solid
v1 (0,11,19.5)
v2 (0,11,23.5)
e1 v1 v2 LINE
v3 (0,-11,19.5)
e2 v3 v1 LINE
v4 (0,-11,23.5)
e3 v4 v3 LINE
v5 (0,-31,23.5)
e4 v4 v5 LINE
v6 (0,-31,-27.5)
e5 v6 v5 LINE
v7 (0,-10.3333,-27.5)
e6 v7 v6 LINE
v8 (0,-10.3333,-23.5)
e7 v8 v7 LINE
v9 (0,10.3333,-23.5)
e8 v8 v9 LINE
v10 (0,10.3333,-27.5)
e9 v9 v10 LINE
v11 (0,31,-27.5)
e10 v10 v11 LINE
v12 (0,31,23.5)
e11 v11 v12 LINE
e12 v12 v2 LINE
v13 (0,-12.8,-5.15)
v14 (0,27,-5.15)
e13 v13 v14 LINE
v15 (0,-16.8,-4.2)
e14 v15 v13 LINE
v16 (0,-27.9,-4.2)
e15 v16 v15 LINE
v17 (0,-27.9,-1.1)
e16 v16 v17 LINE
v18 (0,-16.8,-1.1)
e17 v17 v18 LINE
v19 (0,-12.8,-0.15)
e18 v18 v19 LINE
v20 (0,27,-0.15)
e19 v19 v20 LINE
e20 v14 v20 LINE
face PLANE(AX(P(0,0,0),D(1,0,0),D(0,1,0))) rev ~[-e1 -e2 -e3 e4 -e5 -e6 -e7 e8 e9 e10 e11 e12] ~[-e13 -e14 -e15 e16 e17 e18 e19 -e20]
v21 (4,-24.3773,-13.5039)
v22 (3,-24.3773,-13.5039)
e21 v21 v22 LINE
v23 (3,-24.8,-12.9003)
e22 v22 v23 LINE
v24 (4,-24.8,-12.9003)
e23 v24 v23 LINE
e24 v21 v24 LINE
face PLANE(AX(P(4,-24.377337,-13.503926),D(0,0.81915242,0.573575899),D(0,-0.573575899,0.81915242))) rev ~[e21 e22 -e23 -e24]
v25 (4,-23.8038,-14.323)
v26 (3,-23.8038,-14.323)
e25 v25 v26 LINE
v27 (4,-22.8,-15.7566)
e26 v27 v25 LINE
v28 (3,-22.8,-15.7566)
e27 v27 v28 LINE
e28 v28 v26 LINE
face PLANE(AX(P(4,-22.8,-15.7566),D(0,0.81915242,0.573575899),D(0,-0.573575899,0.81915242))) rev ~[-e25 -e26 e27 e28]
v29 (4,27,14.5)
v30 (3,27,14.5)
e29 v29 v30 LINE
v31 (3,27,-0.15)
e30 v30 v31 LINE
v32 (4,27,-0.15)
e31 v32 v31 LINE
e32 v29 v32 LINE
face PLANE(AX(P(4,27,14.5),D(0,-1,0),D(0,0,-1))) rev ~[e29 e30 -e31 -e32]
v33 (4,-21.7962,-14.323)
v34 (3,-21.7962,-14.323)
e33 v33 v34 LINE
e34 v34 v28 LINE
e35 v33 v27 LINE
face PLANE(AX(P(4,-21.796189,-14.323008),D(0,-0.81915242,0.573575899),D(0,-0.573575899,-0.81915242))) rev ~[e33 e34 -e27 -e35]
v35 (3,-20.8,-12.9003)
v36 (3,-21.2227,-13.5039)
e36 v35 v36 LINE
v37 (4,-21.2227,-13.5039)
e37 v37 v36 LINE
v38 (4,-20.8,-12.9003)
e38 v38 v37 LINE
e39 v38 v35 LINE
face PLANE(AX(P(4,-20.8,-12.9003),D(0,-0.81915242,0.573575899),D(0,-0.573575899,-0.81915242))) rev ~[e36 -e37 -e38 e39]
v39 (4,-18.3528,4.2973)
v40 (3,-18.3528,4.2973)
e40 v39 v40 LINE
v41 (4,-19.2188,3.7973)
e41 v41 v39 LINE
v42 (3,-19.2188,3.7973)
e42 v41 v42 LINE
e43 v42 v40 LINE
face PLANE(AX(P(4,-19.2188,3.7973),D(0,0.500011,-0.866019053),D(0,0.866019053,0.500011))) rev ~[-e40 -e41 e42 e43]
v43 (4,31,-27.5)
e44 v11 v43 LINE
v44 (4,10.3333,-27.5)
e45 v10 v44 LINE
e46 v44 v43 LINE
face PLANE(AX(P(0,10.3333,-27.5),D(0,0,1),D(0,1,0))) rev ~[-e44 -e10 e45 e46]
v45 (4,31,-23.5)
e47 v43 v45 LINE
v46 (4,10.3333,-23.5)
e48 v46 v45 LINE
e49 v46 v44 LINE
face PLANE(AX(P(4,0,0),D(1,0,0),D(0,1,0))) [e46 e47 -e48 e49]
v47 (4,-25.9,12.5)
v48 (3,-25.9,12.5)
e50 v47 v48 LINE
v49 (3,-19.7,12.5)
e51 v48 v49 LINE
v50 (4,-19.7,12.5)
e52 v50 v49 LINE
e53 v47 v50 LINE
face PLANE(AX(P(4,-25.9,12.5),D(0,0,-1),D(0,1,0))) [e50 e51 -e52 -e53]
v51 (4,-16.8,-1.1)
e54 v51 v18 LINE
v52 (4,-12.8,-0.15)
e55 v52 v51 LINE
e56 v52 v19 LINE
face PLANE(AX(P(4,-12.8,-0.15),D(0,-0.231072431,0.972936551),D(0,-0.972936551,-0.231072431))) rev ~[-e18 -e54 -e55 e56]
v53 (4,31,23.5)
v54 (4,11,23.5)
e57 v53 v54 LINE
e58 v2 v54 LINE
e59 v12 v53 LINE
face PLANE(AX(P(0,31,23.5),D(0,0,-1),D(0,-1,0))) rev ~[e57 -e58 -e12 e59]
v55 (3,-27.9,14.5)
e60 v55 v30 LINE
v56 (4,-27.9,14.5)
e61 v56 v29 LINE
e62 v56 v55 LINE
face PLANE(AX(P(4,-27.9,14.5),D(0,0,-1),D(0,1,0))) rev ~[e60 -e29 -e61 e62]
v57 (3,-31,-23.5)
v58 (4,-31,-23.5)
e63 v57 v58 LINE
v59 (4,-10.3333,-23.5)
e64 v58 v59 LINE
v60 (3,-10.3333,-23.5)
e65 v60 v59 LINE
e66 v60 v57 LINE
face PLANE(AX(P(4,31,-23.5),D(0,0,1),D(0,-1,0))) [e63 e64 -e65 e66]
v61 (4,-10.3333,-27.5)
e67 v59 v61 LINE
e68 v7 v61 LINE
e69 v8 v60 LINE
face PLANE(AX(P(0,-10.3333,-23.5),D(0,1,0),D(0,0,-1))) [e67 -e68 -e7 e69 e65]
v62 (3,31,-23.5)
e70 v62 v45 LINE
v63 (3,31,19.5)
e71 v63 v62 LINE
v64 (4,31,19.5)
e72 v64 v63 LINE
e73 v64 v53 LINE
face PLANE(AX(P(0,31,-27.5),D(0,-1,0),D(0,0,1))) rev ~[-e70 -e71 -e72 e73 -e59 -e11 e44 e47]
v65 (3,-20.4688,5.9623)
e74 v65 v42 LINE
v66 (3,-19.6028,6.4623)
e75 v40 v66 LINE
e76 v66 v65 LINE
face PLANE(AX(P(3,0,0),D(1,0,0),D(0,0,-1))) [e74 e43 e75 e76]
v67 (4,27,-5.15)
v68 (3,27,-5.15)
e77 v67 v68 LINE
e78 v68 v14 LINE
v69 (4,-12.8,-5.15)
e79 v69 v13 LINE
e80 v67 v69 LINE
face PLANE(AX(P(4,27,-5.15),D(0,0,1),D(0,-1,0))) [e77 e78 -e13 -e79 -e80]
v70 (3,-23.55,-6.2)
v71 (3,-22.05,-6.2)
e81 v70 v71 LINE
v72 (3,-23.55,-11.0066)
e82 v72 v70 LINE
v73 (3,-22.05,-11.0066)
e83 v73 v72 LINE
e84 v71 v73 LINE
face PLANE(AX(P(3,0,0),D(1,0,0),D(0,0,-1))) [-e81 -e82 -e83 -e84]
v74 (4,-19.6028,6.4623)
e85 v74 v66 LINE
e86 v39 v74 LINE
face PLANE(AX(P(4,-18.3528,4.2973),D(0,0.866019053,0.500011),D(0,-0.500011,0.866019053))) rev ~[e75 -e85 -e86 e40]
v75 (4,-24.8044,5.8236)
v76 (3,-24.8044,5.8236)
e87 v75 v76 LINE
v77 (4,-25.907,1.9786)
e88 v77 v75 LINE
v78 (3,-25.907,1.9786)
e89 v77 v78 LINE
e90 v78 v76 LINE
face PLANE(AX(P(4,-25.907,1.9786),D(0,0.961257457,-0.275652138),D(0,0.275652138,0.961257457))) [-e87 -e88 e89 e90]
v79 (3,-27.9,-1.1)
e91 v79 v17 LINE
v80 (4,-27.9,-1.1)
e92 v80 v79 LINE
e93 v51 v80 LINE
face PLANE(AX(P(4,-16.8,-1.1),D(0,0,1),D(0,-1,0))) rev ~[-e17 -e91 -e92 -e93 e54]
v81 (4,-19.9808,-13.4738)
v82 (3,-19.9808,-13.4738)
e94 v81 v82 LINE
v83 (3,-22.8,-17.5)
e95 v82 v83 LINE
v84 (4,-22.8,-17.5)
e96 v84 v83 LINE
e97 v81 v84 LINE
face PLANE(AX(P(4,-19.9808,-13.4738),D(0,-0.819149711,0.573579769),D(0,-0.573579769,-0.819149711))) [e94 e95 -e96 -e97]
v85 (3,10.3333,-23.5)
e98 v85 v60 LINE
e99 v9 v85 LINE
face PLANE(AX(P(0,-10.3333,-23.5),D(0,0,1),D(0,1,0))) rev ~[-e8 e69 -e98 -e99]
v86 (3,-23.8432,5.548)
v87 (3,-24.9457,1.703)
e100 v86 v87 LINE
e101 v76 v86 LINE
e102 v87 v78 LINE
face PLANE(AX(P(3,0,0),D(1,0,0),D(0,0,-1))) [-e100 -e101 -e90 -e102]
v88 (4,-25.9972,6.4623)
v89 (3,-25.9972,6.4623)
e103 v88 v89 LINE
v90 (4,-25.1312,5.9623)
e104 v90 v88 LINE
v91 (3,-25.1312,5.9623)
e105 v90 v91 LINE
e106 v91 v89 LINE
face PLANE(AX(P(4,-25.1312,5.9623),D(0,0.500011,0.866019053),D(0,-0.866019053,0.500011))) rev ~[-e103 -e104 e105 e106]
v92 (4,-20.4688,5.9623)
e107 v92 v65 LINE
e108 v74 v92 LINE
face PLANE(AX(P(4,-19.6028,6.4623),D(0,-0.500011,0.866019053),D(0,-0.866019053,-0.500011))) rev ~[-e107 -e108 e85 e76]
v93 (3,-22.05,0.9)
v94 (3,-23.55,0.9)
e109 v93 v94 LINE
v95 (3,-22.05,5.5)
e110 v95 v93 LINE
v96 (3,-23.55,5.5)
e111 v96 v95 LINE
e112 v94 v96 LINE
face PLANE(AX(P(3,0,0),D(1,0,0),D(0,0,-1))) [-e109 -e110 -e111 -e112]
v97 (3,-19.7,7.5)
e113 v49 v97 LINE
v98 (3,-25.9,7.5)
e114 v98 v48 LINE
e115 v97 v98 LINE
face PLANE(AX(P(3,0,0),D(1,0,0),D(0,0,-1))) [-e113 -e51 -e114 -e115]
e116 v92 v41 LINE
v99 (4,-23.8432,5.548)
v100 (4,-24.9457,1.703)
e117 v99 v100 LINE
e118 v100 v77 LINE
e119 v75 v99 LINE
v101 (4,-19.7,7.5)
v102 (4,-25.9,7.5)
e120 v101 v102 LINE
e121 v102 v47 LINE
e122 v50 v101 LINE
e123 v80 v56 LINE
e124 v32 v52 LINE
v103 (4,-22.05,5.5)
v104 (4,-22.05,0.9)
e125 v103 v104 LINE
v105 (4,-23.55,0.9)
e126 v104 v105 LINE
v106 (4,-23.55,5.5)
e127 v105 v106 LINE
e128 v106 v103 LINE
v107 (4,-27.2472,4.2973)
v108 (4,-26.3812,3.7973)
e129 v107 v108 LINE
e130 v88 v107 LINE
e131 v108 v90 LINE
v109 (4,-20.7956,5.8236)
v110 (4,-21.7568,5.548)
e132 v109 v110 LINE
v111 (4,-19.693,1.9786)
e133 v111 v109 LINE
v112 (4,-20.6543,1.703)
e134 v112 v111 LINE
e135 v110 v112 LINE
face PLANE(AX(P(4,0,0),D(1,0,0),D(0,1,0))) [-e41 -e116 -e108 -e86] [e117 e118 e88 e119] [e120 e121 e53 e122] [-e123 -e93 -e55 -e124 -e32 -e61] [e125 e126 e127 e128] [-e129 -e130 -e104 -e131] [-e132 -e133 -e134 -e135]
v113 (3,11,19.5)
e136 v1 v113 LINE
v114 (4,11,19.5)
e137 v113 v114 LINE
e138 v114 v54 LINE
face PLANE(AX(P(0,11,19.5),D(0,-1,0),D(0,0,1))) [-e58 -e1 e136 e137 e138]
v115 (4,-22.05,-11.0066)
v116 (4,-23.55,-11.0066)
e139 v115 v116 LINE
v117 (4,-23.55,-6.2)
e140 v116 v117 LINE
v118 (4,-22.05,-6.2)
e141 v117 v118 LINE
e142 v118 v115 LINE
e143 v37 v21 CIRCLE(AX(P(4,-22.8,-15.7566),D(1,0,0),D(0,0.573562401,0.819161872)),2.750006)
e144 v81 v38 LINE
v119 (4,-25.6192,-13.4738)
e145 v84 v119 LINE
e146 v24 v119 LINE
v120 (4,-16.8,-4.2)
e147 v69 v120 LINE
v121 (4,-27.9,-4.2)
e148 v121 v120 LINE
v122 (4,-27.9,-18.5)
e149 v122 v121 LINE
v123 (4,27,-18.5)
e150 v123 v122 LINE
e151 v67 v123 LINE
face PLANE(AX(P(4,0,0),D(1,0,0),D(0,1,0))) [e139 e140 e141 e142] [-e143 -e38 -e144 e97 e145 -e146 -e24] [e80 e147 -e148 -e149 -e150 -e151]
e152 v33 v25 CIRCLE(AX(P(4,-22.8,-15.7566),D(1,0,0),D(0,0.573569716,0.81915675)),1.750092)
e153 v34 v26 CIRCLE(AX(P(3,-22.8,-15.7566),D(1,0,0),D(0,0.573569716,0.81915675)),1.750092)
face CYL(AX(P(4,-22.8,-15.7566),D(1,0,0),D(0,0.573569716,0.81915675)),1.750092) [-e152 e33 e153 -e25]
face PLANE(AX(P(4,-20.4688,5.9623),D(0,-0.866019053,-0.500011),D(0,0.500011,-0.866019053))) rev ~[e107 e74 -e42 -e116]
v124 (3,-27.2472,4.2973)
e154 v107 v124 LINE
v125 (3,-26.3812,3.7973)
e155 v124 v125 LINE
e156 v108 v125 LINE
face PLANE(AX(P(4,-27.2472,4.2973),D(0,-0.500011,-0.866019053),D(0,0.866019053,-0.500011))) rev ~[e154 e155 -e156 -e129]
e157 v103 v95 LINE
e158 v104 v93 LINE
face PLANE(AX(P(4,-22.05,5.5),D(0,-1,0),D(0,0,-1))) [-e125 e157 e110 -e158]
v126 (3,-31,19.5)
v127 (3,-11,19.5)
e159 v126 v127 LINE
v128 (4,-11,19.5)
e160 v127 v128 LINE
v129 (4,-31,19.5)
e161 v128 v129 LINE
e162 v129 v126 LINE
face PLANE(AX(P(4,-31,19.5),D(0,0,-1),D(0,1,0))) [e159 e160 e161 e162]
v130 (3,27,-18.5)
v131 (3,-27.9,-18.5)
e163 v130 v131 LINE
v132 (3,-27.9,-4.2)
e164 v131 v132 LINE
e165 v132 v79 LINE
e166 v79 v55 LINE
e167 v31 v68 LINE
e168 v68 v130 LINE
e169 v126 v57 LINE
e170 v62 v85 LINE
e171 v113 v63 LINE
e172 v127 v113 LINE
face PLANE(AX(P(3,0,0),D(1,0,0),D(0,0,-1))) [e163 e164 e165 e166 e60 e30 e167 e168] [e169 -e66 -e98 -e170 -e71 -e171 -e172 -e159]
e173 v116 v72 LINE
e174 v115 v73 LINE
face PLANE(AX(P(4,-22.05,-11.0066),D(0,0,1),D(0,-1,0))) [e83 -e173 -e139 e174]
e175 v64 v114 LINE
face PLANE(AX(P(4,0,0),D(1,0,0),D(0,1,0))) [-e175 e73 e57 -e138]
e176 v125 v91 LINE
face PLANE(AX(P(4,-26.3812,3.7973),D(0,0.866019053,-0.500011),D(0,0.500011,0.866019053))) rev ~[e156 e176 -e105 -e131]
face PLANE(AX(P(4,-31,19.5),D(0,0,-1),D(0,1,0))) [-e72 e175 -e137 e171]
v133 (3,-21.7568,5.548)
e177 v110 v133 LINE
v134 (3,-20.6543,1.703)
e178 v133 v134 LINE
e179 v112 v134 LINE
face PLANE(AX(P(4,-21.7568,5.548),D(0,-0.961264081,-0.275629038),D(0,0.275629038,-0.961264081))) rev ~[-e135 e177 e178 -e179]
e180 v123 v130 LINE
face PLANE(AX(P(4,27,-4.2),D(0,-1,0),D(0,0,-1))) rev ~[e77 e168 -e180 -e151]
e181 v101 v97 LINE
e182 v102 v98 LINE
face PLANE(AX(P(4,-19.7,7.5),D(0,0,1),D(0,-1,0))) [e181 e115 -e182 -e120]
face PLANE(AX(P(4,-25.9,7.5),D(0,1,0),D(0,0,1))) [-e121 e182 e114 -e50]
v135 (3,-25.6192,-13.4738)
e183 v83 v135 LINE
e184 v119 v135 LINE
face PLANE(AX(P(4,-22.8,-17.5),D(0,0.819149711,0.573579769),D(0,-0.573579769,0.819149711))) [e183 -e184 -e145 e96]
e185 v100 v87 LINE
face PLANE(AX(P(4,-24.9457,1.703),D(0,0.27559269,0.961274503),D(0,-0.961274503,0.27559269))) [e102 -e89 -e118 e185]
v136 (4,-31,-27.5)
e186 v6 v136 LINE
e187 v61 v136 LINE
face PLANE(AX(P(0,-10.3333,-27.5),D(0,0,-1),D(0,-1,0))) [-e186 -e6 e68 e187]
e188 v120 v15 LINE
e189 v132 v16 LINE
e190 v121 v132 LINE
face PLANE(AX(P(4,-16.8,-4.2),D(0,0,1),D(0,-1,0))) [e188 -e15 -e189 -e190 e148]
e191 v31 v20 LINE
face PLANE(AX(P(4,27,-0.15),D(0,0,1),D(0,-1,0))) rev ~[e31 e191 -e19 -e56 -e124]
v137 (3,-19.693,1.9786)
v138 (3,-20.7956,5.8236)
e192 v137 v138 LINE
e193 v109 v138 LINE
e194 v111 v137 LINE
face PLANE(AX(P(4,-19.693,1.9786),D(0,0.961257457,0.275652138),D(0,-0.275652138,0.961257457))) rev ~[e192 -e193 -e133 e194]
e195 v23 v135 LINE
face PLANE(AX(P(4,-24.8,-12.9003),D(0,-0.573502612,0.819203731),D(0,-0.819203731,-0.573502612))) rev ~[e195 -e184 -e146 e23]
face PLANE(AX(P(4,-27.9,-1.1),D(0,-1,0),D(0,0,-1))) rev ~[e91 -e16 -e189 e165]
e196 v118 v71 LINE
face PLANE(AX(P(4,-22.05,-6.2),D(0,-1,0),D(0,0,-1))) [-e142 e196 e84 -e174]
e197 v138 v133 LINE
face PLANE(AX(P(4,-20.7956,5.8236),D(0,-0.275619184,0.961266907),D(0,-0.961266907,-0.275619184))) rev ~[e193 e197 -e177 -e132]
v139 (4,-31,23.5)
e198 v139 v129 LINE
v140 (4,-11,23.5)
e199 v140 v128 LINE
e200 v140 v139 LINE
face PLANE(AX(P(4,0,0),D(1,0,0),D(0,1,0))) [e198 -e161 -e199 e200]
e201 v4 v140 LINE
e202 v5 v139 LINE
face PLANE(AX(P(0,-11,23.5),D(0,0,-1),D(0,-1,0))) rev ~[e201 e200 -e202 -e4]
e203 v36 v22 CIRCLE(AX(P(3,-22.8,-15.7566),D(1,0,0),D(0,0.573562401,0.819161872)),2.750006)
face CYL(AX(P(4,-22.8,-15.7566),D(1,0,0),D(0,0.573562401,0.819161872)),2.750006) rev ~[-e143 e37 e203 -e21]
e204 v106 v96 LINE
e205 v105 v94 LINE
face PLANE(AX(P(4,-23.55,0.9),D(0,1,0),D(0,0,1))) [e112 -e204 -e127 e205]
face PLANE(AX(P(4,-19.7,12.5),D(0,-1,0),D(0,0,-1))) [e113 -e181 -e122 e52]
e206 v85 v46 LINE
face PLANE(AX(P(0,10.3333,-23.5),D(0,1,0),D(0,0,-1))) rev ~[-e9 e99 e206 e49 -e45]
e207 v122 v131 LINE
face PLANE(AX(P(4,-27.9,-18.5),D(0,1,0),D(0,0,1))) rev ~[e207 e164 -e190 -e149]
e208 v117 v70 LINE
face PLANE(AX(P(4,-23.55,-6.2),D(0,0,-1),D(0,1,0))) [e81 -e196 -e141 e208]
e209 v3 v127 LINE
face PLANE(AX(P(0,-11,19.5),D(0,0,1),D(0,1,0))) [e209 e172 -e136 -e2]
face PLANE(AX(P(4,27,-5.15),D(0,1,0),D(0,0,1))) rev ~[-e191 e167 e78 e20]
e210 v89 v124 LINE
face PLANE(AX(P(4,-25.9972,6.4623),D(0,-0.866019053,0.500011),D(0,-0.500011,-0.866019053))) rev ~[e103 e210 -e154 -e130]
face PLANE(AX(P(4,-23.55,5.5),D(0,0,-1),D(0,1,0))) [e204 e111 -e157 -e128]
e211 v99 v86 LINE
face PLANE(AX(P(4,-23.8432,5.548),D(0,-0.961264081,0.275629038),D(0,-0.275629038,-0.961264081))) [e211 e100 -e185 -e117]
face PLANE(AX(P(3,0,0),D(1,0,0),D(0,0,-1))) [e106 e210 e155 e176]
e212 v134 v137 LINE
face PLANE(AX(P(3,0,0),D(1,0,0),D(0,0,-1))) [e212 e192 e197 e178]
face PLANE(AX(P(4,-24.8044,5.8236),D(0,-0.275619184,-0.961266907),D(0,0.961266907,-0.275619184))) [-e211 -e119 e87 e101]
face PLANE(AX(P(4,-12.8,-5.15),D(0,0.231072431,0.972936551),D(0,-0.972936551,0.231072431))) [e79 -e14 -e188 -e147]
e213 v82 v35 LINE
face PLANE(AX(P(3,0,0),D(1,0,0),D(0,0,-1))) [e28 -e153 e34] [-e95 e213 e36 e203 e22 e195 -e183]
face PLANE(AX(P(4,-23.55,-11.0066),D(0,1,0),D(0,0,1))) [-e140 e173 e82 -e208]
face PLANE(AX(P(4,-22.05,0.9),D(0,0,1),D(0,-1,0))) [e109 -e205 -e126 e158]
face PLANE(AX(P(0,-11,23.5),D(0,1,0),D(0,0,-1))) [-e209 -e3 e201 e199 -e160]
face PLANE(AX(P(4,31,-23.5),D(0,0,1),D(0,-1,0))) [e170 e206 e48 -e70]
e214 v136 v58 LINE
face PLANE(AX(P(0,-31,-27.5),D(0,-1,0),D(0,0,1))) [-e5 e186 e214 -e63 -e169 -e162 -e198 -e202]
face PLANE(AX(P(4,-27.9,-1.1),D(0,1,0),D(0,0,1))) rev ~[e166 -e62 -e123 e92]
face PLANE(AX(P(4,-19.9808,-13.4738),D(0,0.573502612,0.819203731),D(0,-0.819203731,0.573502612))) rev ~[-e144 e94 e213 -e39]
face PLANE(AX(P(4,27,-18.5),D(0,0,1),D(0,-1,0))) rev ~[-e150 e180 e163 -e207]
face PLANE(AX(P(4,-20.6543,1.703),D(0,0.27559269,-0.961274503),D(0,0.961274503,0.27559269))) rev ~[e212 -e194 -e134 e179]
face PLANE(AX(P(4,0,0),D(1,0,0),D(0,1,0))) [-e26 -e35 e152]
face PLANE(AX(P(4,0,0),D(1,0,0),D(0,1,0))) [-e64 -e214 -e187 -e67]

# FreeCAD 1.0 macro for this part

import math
import FreeCAD as App
import Part
import Sketcher
from FreeCAD import Vector
Q = App.Units.Quantity

doc = App.newDocument("Part")
params = doc.addObject("Spreadsheet::Sheet", "Params")
for row, (alias, value) in enumerate([
    ("sketch1_width", "20 mm"),
    ("sketch1_height", "4 mm"),
    ("pad1_length", "4 mm"),
    ("sketch2_height", "5 mm"),
    ("sketch2_radius", "2.75 mm"),
    ("sketch2_radius2", "1.75 mm"),
    ("sketch2_length", "1 mm"),
    ("sketch2_length2", "4 mm"),
    ("pocket1_length", "1 mm"),
    ("sketch3_height", "5 mm"),
    ("sketch3_width", "11.1 mm"),
    ("sketch3_width2", "39.8 mm"),
    ("sketch3_height2", "3.1 mm"),
    ("pocket2_length", "4 mm"),
], start=1):
    params.set(f"A{row}", alias)
    params.set(f"B{row}", "=" + value)
    params.setAlias(f"B{row}", alias)

body = doc.addObject("PartDesign::Body", "Body")

# Sketch on YZ plane
sketch1 = body.newObject("Sketcher::SketchObject", "Sketch")
sketch1.AttachmentSupport = (doc.getObject("YZ_Plane"), [""])
sketch1.MapMode = "FlatFace"
sketch1.addGeometry([
    Part.LineSegment(Vector(31, -27.5, 0), Vector(31, 23.5, 0)),  # 0
    Part.LineSegment(Vector(31, 23.5, 0), Vector(11, 23.5, 0)),  # 1
    Part.LineSegment(Vector(11, 23.5, 0), Vector(11, 19.5, 0)),  # 2
    Part.LineSegment(Vector(11, 19.5, 0), Vector(-11, 19.5, 0)),  # 3
    Part.LineSegment(Vector(-11, 19.5, 0), Vector(-11, 23.5, 0)),  # 4
    Part.LineSegment(Vector(-11, 23.5, 0), Vector(-31, 23.5, 0)),  # 5
    Part.LineSegment(Vector(-31, 23.5, 0), Vector(-31, -27.5, 0)),  # 6
    Part.LineSegment(Vector(-31, -27.5, 0), Vector(-10.3333, -27.5, 0)),  # 7
    Part.LineSegment(Vector(-10.3333, -27.5, 0), Vector(-10.3333, -23.5, 0)),  # 8
    Part.LineSegment(Vector(-10.3333, -23.5, 0), Vector(10.3333, -23.5, 0)),  # 9
    Part.LineSegment(Vector(10.3333, -23.5, 0), Vector(10.3333, -27.5, 0)),  # 10
    Part.LineSegment(Vector(10.3333, -27.5, 0), Vector(31, -27.5, 0)),  # 11
], False)
sketch1.addConstraint([
    Sketcher.Constraint("Coincident", 0, 2, 1, 1),
    Sketcher.Constraint("Coincident", 1, 2, 2, 1),
    Sketcher.Constraint("Coincident", 2, 2, 3, 1),
    Sketcher.Constraint("Coincident", 3, 2, 4, 1),
    Sketcher.Constraint("Coincident", 4, 2, 5, 1),
    Sketcher.Constraint("Coincident", 5, 2, 6, 1),
    Sketcher.Constraint("Coincident", 6, 2, 7, 1),
    Sketcher.Constraint("Coincident", 7, 2, 8, 1),
    Sketcher.Constraint("Coincident", 8, 2, 9, 1),
    Sketcher.Constraint("Coincident", 9, 2, 10, 1),
    Sketcher.Constraint("Coincident", 10, 2, 11, 1),
    Sketcher.Constraint("Coincident", 11, 2, 0, 1),
    Sketcher.Constraint("Vertical", 0),
    Sketcher.Constraint("Horizontal", 1),
    Sketcher.Constraint("Vertical", 2),
    Sketcher.Constraint("Horizontal", 3),
    Sketcher.Constraint("Vertical", 4),
    Sketcher.Constraint("Horizontal", 5),
    Sketcher.Constraint("Vertical", 6),
    Sketcher.Constraint("Horizontal", 7),
    Sketcher.Constraint("Vertical", 8),
    Sketcher.Constraint("Horizontal", 9),
    Sketcher.Constraint("Vertical", 10),
    Sketcher.Constraint("Horizontal", 11),
    Sketcher.Constraint("Symmetric", 1, 2, 4, 2, -2),
    Sketcher.Constraint("Symmetric", 7, 2, 10, 2, -2),
    Sketcher.Constraint("Equal", 1, 5),
    Sketcher.Constraint("Equal", 7, 9),
    Sketcher.Constraint("Equal", 4, 8),
    Sketcher.Constraint("DistanceX", 1, 2, 1, 1, 20.0),
    Sketcher.Constraint("DistanceY", 2, 2, 2, 1, 4.0),
    Sketcher.Constraint("DistanceX", 5, 2, 0, 2, 62.0),
    Sketcher.Constraint("DistanceY", 6, 2, 3, 2, 47.0),
    Sketcher.Constraint("DistanceY", -1, 1, 0, 2, 23.5),
])
sketch1.setExpression("Constraints[29]", "Params.sketch1_width")
sketch1.setExpression("Constraints[30]", "Params.sketch1_height")
pad1 = body.newObject("PartDesign::Pad", "Pad")
pad1.Profile = sketch1
pad1.setExpression("Length", "Params.pad1_length")

# Sketch on YZ plane
sketch2 = body.newObject("Sketcher::SketchObject", "Sketch001")
sketch2.AttachmentSupport = (doc.getObject("YZ_Plane"), [""])
sketch2.MapMode = "FlatFace"
sketch2.AttachmentOffset = App.Placement(Vector(0, 0, 4), App.Rotation())
sketch2.addGeometry([
    Part.LineSegment(Vector(31, -23.5, 0), Vector(31, 19.5, 0)),  # 0
    Part.LineSegment(Vector(31, 19.5, 0), Vector(-31, 19.5, 0)),  # 1
    Part.LineSegment(Vector(-31, 19.5, 0), Vector(-31, -23.5, 0)),  # 2
    Part.LineSegment(Vector(-31, -23.5, 0), Vector(31, -23.5, 0)),  # 3
    Part.LineSegment(Vector(-27.9, -4.2, 0), Vector(27, -4.2, 0)),  # 4
    Part.LineSegment(Vector(27, -4.2, 0), Vector(27, -18.5, 0)),  # 5
    Part.LineSegment(Vector(27, -18.5, 0), Vector(-27.9, -18.5, 0)),  # 6
    Part.LineSegment(Vector(-27.9, -18.5, 0), Vector(-27.9, -4.2, 0)),  # 7
    Part.LineSegment(Vector(27, -1.1, 0), Vector(-27.9, -1.1, 0)),  # 8
    Part.LineSegment(Vector(-27.9, -1.1, 0), Vector(-27.9, 14.5, 0)),  # 9
    Part.LineSegment(Vector(-27.9, 14.5, 0), Vector(27, 14.5, 0)),  # 10
    Part.LineSegment(Vector(27, 14.5, 0), Vector(27, -1.1, 0)),  # 11
    Part.LineSegment(Vector(-19.7, 7.5, 0), Vector(-19.7, 12.5, 0)),  # 12
    Part.LineSegment(Vector(-19.7, 12.5, 0), Vector(-25.9, 12.5, 0)),  # 13
    Part.LineSegment(Vector(-25.9, 12.5, 0), Vector(-25.9, 7.5, 0)),  # 14
    Part.LineSegment(Vector(-25.9, 7.5, 0), Vector(-19.7, 7.5, 0)),  # 15
    Part.LineSegment(Vector(-22.05, 0.9, 0), Vector(-22.05, 5.5, 0)),  # 16
    Part.LineSegment(Vector(-22.05, 5.5, 0), Vector(-23.55, 5.5, 0)),  # 17
    Part.LineSegment(Vector(-23.55, 5.5, 0), Vector(-23.55, 0.9, 0)),  # 18
    Part.LineSegment(Vector(-23.55, 0.9, 0), Vector(-22.05, 0.9, 0)),  # 19
    Part.LineSegment(Vector(-22.8, -17.5, 0), Vector(-19.9808, -13.4738, 0)),  # 20
    Part.LineSegment(Vector(-19.9808, -13.4738, 0), Vector(-20.8, -12.9003, 0)),  # 21
    Part.LineSegment(Vector(-20.8, -12.9003, 0), Vector(-21.222663, -13.503926, 0)),  # 22
    Part.ArcOfCircle(Part.Circle(Vector(-22.8, -15.7566, 0), Vector(0, 0, 1), 2.750006), math.radians(55.000982), math.radians(124.999018)),  # 23
    Part.LineSegment(Vector(-24.377337, -13.503926, 0), Vector(-24.8, -12.9003, 0)),  # 24
    Part.LineSegment(Vector(-24.8, -12.9003, 0), Vector(-25.6192, -13.4738, 0)),  # 25
    Part.LineSegment(Vector(-25.6192, -13.4738, 0), Vector(-22.8, -17.5, 0)),  # 26
    Part.LineSegment(Vector(-22.8, -15.7566, 0), Vector(-23.803811, -14.323008, 0)),  # 27
    Part.ArcOfCircle(Part.Circle(Vector(-22.8, -15.7566, 0), Vector(0, 0, 1), 1.750092), math.radians(55.00047), math.radians(124.99953)),  # 28
    Part.LineSegment(Vector(-21.796189, -14.323008, 0), Vector(-22.8, -15.7566, 0)),  # 29
    Part.LineSegment(Vector(-22.05, -11.0066, 0), Vector(-22.05, -6.2, 0)),  # 30
    Part.LineSegment(Vector(-22.05, -6.2, 0), Vector(-23.55, -6.2, 0)),  # 31
    Part.LineSegment(Vector(-23.55, -6.2, 0), Vector(-23.55, -11.0066, 0)),  # 32
    Part.LineSegment(Vector(-23.55, -11.0066, 0), Vector(-22.05, -11.0066, 0)),  # 33
    Part.LineSegment(Vector(-19.693, 1.9786, 0), Vector(-20.7956, 5.8236, 0)),  # 34
    Part.LineSegment(Vector(-20.7956, 5.8236, 0), Vector(-21.7568, 5.548, 0)),  # 35
    Part.LineSegment(Vector(-21.7568, 5.548, 0), Vector(-20.6543, 1.703, 0)),  # 36
    Part.LineSegment(Vector(-20.6543, 1.703, 0), Vector(-19.693, 1.9786, 0)),  # 37
    Part.LineSegment(Vector(-24.9457, 1.703, 0), Vector(-23.8432, 5.548, 0)),  # 38
    Part.LineSegment(Vector(-23.8432, 5.548, 0), Vector(-24.8044, 5.8236, 0)),  # 39
    Part.LineSegment(Vector(-24.8044, 5.8236, 0), Vector(-25.907, 1.9786, 0)),  # 40
    Part.LineSegment(Vector(-25.907, 1.9786, 0), Vector(-24.9457, 1.703, 0)),  # 41
    Part.LineSegment(Vector(-18.3528, 4.2973, 0), Vector(-19.6028, 6.4623, 0)),  # 42
    Part.LineSegment(Vector(-19.6028, 6.4623, 0), Vector(-20.4688, 5.9623, 0)),  # 43
    Part.LineSegment(Vector(-20.4688, 5.9623, 0), Vector(-19.2188, 3.7973, 0)),  # 44
    Part.LineSegment(Vector(-19.2188, 3.7973, 0), Vector(-18.3528, 4.2973, 0)),  # 45
    Part.LineSegment(Vector(-26.3812, 3.7973, 0), Vector(-25.1312, 5.9623, 0)),  # 46
    Part.LineSegment(Vector(-25.1312, 5.9623, 0), Vector(-25.9972, 6.4623, 0)),  # 47
    Part.LineSegment(Vector(-25.9972, 6.4623, 0), Vector(-27.2472, 4.2973, 0)),  # 48
    Part.LineSegment(Vector(-27.2472, 4.2973, 0), Vector(-26.3812, 3.7973, 0)),  # 49
], False)
sketch2.addConstraint([
    Sketcher.Constraint("Coincident", 0, 2, 1, 1),
    Sketcher.Constraint("Coincident", 1, 2, 2, 1),
    Sketcher.Constraint("Coincident", 2, 2, 3, 1),
    Sketcher.Constraint("Coincident", 3, 2, 0, 1),
    Sketcher.Constraint("Coincident", 4, 2, 5, 1),
    Sketcher.Constraint("Coincident", 5, 2, 6, 1),
    Sketcher.Constraint("Coincident", 6, 2, 7, 1),
    Sketcher.Constraint("Coincident", 7, 2, 4, 1),
    Sketcher.Constraint("Coincident", 8, 2, 9, 1),
    Sketcher.Constraint("Coincident", 9, 2, 10, 1),
    Sketcher.Constraint("Coincident", 10, 2, 11, 1),
    Sketcher.Constraint("Coincident", 11, 2, 8, 1),
    Sketcher.Constraint("Coincident", 12, 2, 13, 1),
    Sketcher.Constraint("Coincident", 13, 2, 14, 1),
    Sketcher.Constraint("Coincident", 14, 2, 15, 1),
    Sketcher.Constraint("Coincident", 15, 2, 12, 1),
    Sketcher.Constraint("Coincident", 16, 2, 17, 1),
    Sketcher.Constraint("Coincident", 17, 2, 18, 1),
    Sketcher.Constraint("Coincident", 18, 2, 19, 1),
    Sketcher.Constraint("Coincident", 19, 2, 16, 1),
    Sketcher.Constraint("Coincident", 20, 2, 21, 1),
    Sketcher.Constraint("Coincident", 21, 2, 22, 1),
    Sketcher.Constraint("Coincident", 22, 2, 23, 1),
    Sketcher.Constraint("Coincident", 23, 2, 24, 1),
    Sketcher.Constraint("Coincident", 24, 2, 25, 1),
    Sketcher.Constraint("Coincident", 25, 2, 26, 1),
    Sketcher.Constraint("Coincident", 26, 2, 20, 1),
    Sketcher.Constraint("Coincident", 27, 2, 28, 2),
    Sketcher.Constraint("Coincident", 28, 1, 29, 1),
    Sketcher.Constraint("Coincident", 29, 2, 27, 1),
    Sketcher.Constraint("Coincident", 30, 2, 31, 1),
    Sketcher.Constraint("Coincident", 31, 2, 32, 1),
    Sketcher.Constraint("Coincident", 32, 2, 33, 1),
    Sketcher.Constraint("Coincident", 33, 2, 30, 1),
    Sketcher.Constraint("Coincident", 34, 2, 35, 1),
    Sketcher.Constraint("Coincident", 35, 2, 36, 1),
    Sketcher.Constraint("Coincident", 36, 2, 37, 1),
    Sketcher.Constraint("Coincident", 37, 2, 34, 1),
    Sketcher.Constraint("Coincident", 38, 2, 39, 1),
    Sketcher.Constraint("Coincident", 39, 2, 40, 1),
    Sketcher.Constraint("Coincident", 40, 2, 41, 1),
    Sketcher.Constraint("Coincident", 41, 2, 38, 1),
    Sketcher.Constraint("Coincident", 42, 2, 43, 1),
    Sketcher.Constraint("Coincident", 43, 2, 44, 1),
    Sketcher.Constraint("Coincident", 44, 2, 45, 1),
    Sketcher.Constraint("Coincident", 45, 2, 42, 1),
    Sketcher.Constraint("Coincident", 46, 2, 47, 1),
    Sketcher.Constraint("Coincident", 47, 2, 48, 1),
    Sketcher.Constraint("Coincident", 48, 2, 49, 1),
    Sketcher.Constraint("Coincident", 49, 2, 46, 1),
    Sketcher.Constraint("Vertical", 0),
    Sketcher.Constraint("Horizontal", 1),
    Sketcher.Constraint("Vertical", 2),
    Sketcher.Constraint("Horizontal", 3),
    Sketcher.Constraint("Horizontal", 4),
    Sketcher.Constraint("Vertical", 5),
    Sketcher.Constraint("Horizontal", 6),
    Sketcher.Constraint("Vertical", 7),
    Sketcher.Constraint("Horizontal", 8),
    Sketcher.Constraint("Vertical", 9),
    Sketcher.Constraint("Horizontal", 10),
    Sketcher.Constraint("Vertical", 11),
    Sketcher.Constraint("Vertical", 12),
    Sketcher.Constraint("Horizontal", 13),
    Sketcher.Constraint("Vertical", 14),
    Sketcher.Constraint("Horizontal", 15),
    Sketcher.Constraint("Vertical", 16),
    Sketcher.Constraint("Horizontal", 17),
    Sketcher.Constraint("Vertical", 18),
    Sketcher.Constraint("Horizontal", 19),
    Sketcher.Constraint("Vertical", 30),
    Sketcher.Constraint("Horizontal", 31),
    Sketcher.Constraint("Vertical", 32),
    Sketcher.Constraint("Horizontal", 33),
    Sketcher.Constraint("Coincident", 28, 3, 23, 3),
    Sketcher.Constraint("Coincident", 29, 2, 23, 3),
    Sketcher.Constraint("Perpendicular", 20, 21),
    Sketcher.Constraint("Perpendicular", 21, 22),
    Sketcher.Constraint("Perpendicular", 24, 25),
    Sketcher.Constraint("Perpendicular", 25, 26),
    Sketcher.Constraint("Parallel", 26, 27),
    Sketcher.Constraint("Parallel", 22, 29),
    Sketcher.Constraint("Perpendicular", 34, 35),
    Sketcher.Constraint("Perpendicular", 35, 36),
    Sketcher.Constraint("Perpendicular", 36, 37),
    Sketcher.Constraint("Perpendicular", 38, 39),
    Sketcher.Constraint("Perpendicular", 39, 40),
    Sketcher.Constraint("Perpendicular", 40, 41),
    Sketcher.Constraint("Perpendicular", 42, 43),
    Sketcher.Constraint("Perpendicular", 43, 44),
    Sketcher.Constraint("Perpendicular", 44, 45),
    Sketcher.Constraint("Perpendicular", 46, 47),
    Sketcher.Constraint("Perpendicular", 47, 48),
    Sketcher.Constraint("Perpendicular", 48, 49),
    Sketcher.Constraint("Horizontal", 22, 2, 23, 2),
    Sketcher.Constraint("Horizontal", 21, 2, 24, 2),
    Sketcher.Constraint("Horizontal", 20, 2, 25, 2),
    Sketcher.Constraint("Horizontal", 27, 2, 28, 1),
    Sketcher.Constraint("Horizontal", 35, 2, 38, 2),
    Sketcher.Constraint("Horizontal", 34, 2, 39, 2),
    Sketcher.Constraint("Horizontal", 37, 2, 40, 2),
    Sketcher.Constraint("Horizontal", 43, 2, 46, 2),
    Sketcher.Constraint("Horizontal", 42, 2, 47, 2),
    Sketcher.Constraint("Horizontal", 45, 2, 48, 2),
    Sketcher.Constraint("Vertical", 7, 2, 8, 2),
    Sketcher.Constraint("Vertical", 5, 2, 10, 2),
    Sketcher.Constraint("Vertical", 19, 2, 30, 2),
    Sketcher.Constraint("Vertical", 18, 2, 31, 2),
    Sketcher.Constraint("Equal", 25, 35),
    Sketcher.Constraint("Equal", 36, 38),
    Sketcher.Constraint("Equal", 41, 43),
    Sketcher.Constraint("Equal", 44, 46),
    Sketcher.Constraint("DistanceY", 12, 1, 12, 2, 5.0),
    Sketcher.Constraint("Radius", 23, 2.75),
    Sketcher.Constraint("Radius", 28, 1.75),
    Sketcher.Constraint("Distance", 21, 1.0),
    Sketcher.Constraint("Distance", 34, 4.0),
    Sketcher.Constraint("DistanceX", 13, 2, 13, 1, 6.2),
    Sketcher.Constraint("DistanceX", 17, 2, 17, 1, 1.5),
    Sketcher.Constraint("DistanceY", 5, 2, 5, 1, 14.3),
    Sketcher.Constraint("DistanceX", 4, 2, 3, 2, 4.0),
    Sketcher.Constraint("DistanceY", 3, 2, 5, 2, 5.0),
    Sketcher.Constraint("DistanceY", 9, 2, 1, 2, 5.0),
    Sketcher.Constraint("DistanceY", 12, 2, 9, 2, 2.0),
    Sketcher.Constraint("DistanceX", 9, 2, 13, 2, 2.0),
    Sketcher.Constraint("DistanceY", 16, 2, 15, 2, 2.0),
    Sketcher.Constraint("DistanceY", 8, 2, 18, 2, 2.0),
    Sketcher.Constraint("DistanceX", 23, 3, 21, 2, 2.0),
    Sketcher.Constraint("DistanceY", 30, 2, 7, 2, 2.0),
    Sketcher.Constraint("Distance", 42, 2.5),
    Sketcher.Constraint("DistanceY", 30, 2, -1, 1, 6.2),
    Sketcher.Constraint("DistanceX", 2, 2, 6, 2, 3.1),
    Sketcher.Constraint("DistanceY", 7, 2, 8, 2, 3.1),
    Sketcher.Constraint("DistanceX", 23, 3, 12, 2, 3.1),
    Sketcher.Constraint("DistanceX", 1, 2, 1, 1, 62.0),
    Sketcher.Constraint("DistanceY", 0, 1, 0, 2, 43.0),
    Sketcher.Constraint("Angle", 20, Q("54.9998 deg")),
    Sketcher.Constraint("Angle", 34, Q("106.001 deg")),
    Sketcher.Constraint("Angle", 42, Q("120.0007 deg")),
    Sketcher.Constraint("DistanceX", 24, 2, 30, 2, 2.75),
    Sketcher.Constraint("DistanceX", -1, 1, 0, 2, 31.0),
    Sketcher.Constraint("DistanceY", 26, 2, -1, 1, 17.5),
    Sketcher.Constraint("DistanceY", 23, 2, 20, 2, 0.03),
    Sketcher.Constraint("DistanceY", 30, 1, 30, 2, 4.8066),
    Sketcher.Constraint("DistanceY", -1, 1, 35, 2, 5.548),
    Sketcher.Constraint("DistanceX", 37, 2, -1, 1, 19.693),
    Sketcher.Constraint("DistanceX", 40, 2, -1, 1, 25.907),
    Sketcher.Constraint("DistanceX", 35, 2, 42, 2, 2.154),
    Sketcher.Constraint("DistanceX", 46, 2, 38, 2, 1.288),
    Sketcher.Constraint("DistanceY", -1, 1, 42, 2, 6.4623),
])
sketch2.setExpression("Constraints[112]", "Params.sketch2_height")
sketch2.setExpression("Constraints[113]", "Params.sketch2_radius")
sketch2.setExpression("Constraints[114]", "Params.sketch2_radius2")
sketch2.setExpression("Constraints[115]", "Params.sketch2_length")
sketch2.setExpression("Constraints[116]", "Params.sketch2_length2")
pocket1 = body.newObject("PartDesign::Pocket", "Pocket")
pocket1.Profile = sketch2
pocket1.setExpression("Length", "Params.pocket1_length")

# Sketch on YZ plane
sketch3 = body.newObject("Sketcher::SketchObject", "Sketch002")
sketch3.AttachmentSupport = (doc.getObject("YZ_Plane"), [""])
sketch3.MapMode = "FlatFace"
sketch3.AttachmentOffset = App.Placement(Vector(0, 0, 4), App.Rotation())
sketch3.addGeometry([
    Part.LineSegment(Vector(-27.9, -1.1, 0), Vector(-27.9, -4.2, 0)),  # 0
    Part.LineSegment(Vector(-27.9, -4.2, 0), Vector(-16.8, -4.2, 0)),  # 1
    Part.LineSegment(Vector(-16.8, -4.2, 0), Vector(-12.8, -5.15, 0)),  # 2
    Part.LineSegment(Vector(-12.8, -5.15, 0), Vector(27, -5.15, 0)),  # 3
    Part.LineSegment(Vector(27, -5.15, 0), Vector(27, -0.15, 0)),  # 4
    Part.LineSegment(Vector(27, -0.15, 0), Vector(-12.8, -0.15, 0)),  # 5
    Part.LineSegment(Vector(-12.8, -0.15, 0), Vector(-16.8, -1.1, 0)),  # 6
    Part.LineSegment(Vector(-16.8, -1.1, 0), Vector(-27.9, -1.1, 0)),  # 7
], False)
sketch3.addConstraint([
    Sketcher.Constraint("Coincident", 0, 2, 1, 1),
    Sketcher.Constraint("Coincident", 1, 2, 2, 1),
    Sketcher.Constraint("Coincident", 2, 2, 3, 1),
    Sketcher.Constraint("Coincident", 3, 2, 4, 1),
    Sketcher.Constraint("Coincident", 4, 2, 5, 1),
    Sketcher.Constraint("Coincident", 5, 2, 6, 1),
    Sketcher.Constraint("Coincident", 6, 2, 7, 1),
    Sketcher.Constraint("Coincident", 7, 2, 0, 1),
    Sketcher.Constraint("Vertical", 0),
    Sketcher.Constraint("Horizontal", 1),
    Sketcher.Constraint("Horizontal", 3),
    Sketcher.Constraint("Vertical", 4),
    Sketcher.Constraint("Horizontal", 5),
    Sketcher.Constraint("Horizontal", 7),
    Sketcher.Constraint("Vertical", 2, 2, 5, 2),
    Sketcher.Constraint("Vertical", 1, 2, 6, 2),
    Sketcher.Constraint("Equal", 2, 6),
    Sketcher.Constraint("DistanceY", 4, 1, 4, 2, 5.0),
    Sketcher.Constraint("DistanceX", 1, 1, 1, 2, 11.1),
    Sketcher.Constraint("DistanceX", 1, 2, 2, 2, 4.0),
    Sketcher.Constraint("DistanceX", 3, 1, 3, 2, 39.8),
    Sketcher.Constraint("DistanceY", 0, 2, 0, 1, 3.1),
    Sketcher.Constraint("DistanceX", -1, 1, 3, 2, 27.0),
    Sketcher.Constraint("DistanceY", 0, 2, -1, 1, 4.2),
])
sketch3.setExpression("Constraints[17]", "Params.sketch3_height")
sketch3.setExpression("Constraints[18]", "Params.sketch3_width")
sketch3.setExpression("Constraints[20]", "Params.sketch3_width2")
sketch3.setExpression("Constraints[21]", "Params.sketch3_height2")
pocket2 = body.newObject("PartDesign::Pocket", "Pocket001")
pocket2.Profile = sketch3
pocket2.setExpression("Length", "Params.pocket2_length")

doc.recompute()
